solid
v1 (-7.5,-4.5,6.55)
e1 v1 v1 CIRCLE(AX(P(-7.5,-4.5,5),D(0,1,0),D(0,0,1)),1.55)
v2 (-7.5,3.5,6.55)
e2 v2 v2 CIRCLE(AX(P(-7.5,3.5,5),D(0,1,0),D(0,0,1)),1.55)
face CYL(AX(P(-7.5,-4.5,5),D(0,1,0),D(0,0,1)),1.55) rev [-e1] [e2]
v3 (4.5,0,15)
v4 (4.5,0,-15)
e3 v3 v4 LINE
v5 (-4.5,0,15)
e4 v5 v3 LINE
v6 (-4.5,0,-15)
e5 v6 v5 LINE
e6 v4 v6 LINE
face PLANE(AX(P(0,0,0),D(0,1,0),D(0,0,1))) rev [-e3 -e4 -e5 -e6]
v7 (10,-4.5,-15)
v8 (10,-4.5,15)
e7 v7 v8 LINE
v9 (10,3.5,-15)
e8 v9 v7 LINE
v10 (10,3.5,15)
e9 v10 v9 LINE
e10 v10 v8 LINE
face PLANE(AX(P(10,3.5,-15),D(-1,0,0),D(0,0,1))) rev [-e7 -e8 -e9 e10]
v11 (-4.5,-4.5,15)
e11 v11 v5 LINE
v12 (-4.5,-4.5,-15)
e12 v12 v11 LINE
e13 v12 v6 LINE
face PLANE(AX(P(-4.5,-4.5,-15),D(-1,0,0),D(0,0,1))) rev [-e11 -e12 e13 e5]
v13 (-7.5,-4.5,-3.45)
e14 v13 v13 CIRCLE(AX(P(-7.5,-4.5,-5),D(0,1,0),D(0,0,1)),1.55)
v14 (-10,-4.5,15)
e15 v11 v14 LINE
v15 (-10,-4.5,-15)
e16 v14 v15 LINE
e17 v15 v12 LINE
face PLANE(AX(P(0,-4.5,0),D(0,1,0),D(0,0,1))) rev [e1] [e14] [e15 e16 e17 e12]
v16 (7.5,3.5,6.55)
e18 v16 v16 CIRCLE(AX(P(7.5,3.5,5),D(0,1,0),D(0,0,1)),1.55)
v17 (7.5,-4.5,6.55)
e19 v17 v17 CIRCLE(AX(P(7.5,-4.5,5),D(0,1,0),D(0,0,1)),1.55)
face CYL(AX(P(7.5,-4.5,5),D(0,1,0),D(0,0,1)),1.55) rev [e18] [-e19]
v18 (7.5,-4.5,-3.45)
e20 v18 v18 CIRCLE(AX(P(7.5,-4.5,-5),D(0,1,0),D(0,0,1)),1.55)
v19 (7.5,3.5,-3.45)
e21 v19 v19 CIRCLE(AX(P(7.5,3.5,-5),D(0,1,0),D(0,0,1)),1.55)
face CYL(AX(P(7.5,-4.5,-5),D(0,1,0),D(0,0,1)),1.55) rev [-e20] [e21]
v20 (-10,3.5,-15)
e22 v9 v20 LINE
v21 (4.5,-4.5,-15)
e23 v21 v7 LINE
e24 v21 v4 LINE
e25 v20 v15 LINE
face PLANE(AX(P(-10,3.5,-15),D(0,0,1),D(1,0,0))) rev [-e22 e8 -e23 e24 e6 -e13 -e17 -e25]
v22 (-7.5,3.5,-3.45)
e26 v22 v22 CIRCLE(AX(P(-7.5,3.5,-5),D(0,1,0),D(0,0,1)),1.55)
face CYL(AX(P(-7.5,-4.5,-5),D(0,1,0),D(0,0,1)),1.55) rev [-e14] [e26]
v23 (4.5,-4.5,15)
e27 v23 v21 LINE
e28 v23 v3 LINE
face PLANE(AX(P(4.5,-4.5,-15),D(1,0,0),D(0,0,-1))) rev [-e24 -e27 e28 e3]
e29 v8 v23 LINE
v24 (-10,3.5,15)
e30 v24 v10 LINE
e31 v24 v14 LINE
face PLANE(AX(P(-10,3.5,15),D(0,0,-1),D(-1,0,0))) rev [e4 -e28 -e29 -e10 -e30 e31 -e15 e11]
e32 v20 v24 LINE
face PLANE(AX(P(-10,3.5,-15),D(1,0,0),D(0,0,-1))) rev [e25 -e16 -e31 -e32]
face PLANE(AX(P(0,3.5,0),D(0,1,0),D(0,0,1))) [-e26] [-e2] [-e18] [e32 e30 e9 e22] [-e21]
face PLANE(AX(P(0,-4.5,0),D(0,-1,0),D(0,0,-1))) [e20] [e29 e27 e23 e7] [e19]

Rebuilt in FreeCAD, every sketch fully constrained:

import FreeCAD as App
import Part
import Sketcher
Q = App.Units.Quantity


def add_polygon(sketch, points):
    """Adds a closed chain of lines whose ends are joined by coincident constraints."""
    first, n = sketch.GeometryCount, len(points)
    for a, b in zip(points, points[1:] + points[:1]):
        sketch.addGeometry(Part.LineSegment(App.Vector(*a, 0), App.Vector(*b, 0)), False)
    for i in range(n):
        sketch.addConstraint(Sketcher.Constraint("Coincident", first + i, 2, first + (i + 1) % n, 1))

doc = App.newDocument("Part")
body = doc.addObject("PartDesign::Body", "Body")

# Sketch on XZ plane
sketch1 = doc.addObject("Sketcher::SketchObject", "Sketch")
body.addObject(sketch1)
sketch1.AttachmentSupport = (doc.XZ_Plane, [""])
sketch1.MapMode = "FlatFace"
add_polygon(sketch1, [(-10, -15), (-10, 15), (10, 15), (10, -15)])  # lines 0-3
sketch1.addConstraint([
    Sketcher.Constraint("Vertical", 0),
    Sketcher.Constraint("Horizontal", 1),
    Sketcher.Constraint("Vertical", 2),
    Sketcher.Constraint("Horizontal", 3),
    Sketcher.Constraint("Symmetric", 0, 2, 2, 2, -1, 1),
    Sketcher.Constraint("DistanceX", 1, 1, 1, 2, Q("20 mm")),
    Sketcher.Constraint("DistanceY", 0, 1, 0, 2, Q("30 mm")),
])
pad1 = doc.addObject("PartDesign::Pad", "Pad")
body.addObject(pad1)
pad1.Profile = sketch1
pad1.Length = 3.5
pad1.Reversed = True

# Sketch on XZ plane
sketch2 = doc.addObject("Sketcher::SketchObject", "Sketch001")
body.addObject(sketch2)
sketch2.AttachmentSupport = (doc.XZ_Plane, [""])
sketch2.MapMode = "FlatFace"
add_polygon(sketch2, [(10, -15), (10, 15), (4, 15), (4, -15)])  # lines 0-3
add_polygon(sketch2, [(-4, -15), (-4, 15), (-10, 15), (-10, -15)])  # lines 4-7
sketch2.addConstraint([
    Sketcher.Constraint("Vertical", 0),
    Sketcher.Constraint("Horizontal", 1),
    Sketcher.Constraint("Vertical", 2),
    Sketcher.Constraint("Horizontal", 3),
    Sketcher.Constraint("Vertical", 4),
    Sketcher.Constraint("Horizontal", 5),
    Sketcher.Constraint("Vertical", 6),
    Sketcher.Constraint("Horizontal", 7),
    Sketcher.Constraint("Symmetric", 2, 2, 4, 2, -1, 1),
    Sketcher.Constraint("Symmetric", 0, 2, 6, 2, -1, 1),
    Sketcher.Constraint("Horizontal", 1, 2, 4, 2),
    Sketcher.Constraint("DistanceY", 0, 1, 0, 2, Q("30 mm")),
    Sketcher.Constraint("DistanceX", 1, 2, 1, 1, Q("5.5 mm")),
    Sketcher.Constraint("DistanceX", -1, 1, 0, 2, Q("10 mm")),
])
pad2 = doc.addObject("PartDesign::Pad", "Pad001")
body.addObject(pad2)
pad2.Profile = sketch2
pad2.Length = 4.5

# Sketch on XZ plane
sketch3 = doc.addObject("Sketcher::SketchObject", "Sketch002")
body.addObject(sketch3)
sketch3.AttachmentSupport = (doc.XZ_Plane, [""])
sketch3.MapMode = "FlatFace"
sketch3.AttachmentOffset = App.Placement(App.Vector(0, 0, -3.5), App.Rotation())
sketch3.addGeometry([
    Part.Circle(App.Vector(-7.5, 5, 0), App.Vector(0, 0, 1), 1.6),
    Part.Circle(App.Vector(-7.5, -5, 0), App.Vector(0, 0, 1), 1.6),
    Part.Circle(App.Vector(7.5, -5, 0), App.Vector(0, 0, 1), 1.6),
    Part.Circle(App.Vector(7.5, 5, 0), App.Vector(0, 0, 1), 1.6),
], False)
sketch3.addConstraint([
    Sketcher.Constraint("Equal", 0, 1),
    Sketcher.Constraint("Equal", 1, 2),
    Sketcher.Constraint("Equal", 2, 3),
    Sketcher.Constraint("Symmetric", 0, 3, 2, 3, -1, 1),
    Sketcher.Constraint("Symmetric", 1, 3, 3, 3, -1, 1),
    Sketcher.Constraint("Symmetric", 1, 3, 2, 3, -2),
    Sketcher.Constraint("Diameter", 0, Q("3.1 mm")),
    Sketcher.Constraint("DistanceY", -1, 1, 0, 3, Q("5 mm")),
    Sketcher.Constraint("DistanceX", 1, 3, 2, 3, Q("15 mm")),
])
pocket1 = doc.addObject("PartDesign::Pocket", "Pocket")
body.addObject(pocket1)
pocket1.Profile = sketch3
pocket1.Length = 8
pocket1.Reversed = True

doc.recompute()
